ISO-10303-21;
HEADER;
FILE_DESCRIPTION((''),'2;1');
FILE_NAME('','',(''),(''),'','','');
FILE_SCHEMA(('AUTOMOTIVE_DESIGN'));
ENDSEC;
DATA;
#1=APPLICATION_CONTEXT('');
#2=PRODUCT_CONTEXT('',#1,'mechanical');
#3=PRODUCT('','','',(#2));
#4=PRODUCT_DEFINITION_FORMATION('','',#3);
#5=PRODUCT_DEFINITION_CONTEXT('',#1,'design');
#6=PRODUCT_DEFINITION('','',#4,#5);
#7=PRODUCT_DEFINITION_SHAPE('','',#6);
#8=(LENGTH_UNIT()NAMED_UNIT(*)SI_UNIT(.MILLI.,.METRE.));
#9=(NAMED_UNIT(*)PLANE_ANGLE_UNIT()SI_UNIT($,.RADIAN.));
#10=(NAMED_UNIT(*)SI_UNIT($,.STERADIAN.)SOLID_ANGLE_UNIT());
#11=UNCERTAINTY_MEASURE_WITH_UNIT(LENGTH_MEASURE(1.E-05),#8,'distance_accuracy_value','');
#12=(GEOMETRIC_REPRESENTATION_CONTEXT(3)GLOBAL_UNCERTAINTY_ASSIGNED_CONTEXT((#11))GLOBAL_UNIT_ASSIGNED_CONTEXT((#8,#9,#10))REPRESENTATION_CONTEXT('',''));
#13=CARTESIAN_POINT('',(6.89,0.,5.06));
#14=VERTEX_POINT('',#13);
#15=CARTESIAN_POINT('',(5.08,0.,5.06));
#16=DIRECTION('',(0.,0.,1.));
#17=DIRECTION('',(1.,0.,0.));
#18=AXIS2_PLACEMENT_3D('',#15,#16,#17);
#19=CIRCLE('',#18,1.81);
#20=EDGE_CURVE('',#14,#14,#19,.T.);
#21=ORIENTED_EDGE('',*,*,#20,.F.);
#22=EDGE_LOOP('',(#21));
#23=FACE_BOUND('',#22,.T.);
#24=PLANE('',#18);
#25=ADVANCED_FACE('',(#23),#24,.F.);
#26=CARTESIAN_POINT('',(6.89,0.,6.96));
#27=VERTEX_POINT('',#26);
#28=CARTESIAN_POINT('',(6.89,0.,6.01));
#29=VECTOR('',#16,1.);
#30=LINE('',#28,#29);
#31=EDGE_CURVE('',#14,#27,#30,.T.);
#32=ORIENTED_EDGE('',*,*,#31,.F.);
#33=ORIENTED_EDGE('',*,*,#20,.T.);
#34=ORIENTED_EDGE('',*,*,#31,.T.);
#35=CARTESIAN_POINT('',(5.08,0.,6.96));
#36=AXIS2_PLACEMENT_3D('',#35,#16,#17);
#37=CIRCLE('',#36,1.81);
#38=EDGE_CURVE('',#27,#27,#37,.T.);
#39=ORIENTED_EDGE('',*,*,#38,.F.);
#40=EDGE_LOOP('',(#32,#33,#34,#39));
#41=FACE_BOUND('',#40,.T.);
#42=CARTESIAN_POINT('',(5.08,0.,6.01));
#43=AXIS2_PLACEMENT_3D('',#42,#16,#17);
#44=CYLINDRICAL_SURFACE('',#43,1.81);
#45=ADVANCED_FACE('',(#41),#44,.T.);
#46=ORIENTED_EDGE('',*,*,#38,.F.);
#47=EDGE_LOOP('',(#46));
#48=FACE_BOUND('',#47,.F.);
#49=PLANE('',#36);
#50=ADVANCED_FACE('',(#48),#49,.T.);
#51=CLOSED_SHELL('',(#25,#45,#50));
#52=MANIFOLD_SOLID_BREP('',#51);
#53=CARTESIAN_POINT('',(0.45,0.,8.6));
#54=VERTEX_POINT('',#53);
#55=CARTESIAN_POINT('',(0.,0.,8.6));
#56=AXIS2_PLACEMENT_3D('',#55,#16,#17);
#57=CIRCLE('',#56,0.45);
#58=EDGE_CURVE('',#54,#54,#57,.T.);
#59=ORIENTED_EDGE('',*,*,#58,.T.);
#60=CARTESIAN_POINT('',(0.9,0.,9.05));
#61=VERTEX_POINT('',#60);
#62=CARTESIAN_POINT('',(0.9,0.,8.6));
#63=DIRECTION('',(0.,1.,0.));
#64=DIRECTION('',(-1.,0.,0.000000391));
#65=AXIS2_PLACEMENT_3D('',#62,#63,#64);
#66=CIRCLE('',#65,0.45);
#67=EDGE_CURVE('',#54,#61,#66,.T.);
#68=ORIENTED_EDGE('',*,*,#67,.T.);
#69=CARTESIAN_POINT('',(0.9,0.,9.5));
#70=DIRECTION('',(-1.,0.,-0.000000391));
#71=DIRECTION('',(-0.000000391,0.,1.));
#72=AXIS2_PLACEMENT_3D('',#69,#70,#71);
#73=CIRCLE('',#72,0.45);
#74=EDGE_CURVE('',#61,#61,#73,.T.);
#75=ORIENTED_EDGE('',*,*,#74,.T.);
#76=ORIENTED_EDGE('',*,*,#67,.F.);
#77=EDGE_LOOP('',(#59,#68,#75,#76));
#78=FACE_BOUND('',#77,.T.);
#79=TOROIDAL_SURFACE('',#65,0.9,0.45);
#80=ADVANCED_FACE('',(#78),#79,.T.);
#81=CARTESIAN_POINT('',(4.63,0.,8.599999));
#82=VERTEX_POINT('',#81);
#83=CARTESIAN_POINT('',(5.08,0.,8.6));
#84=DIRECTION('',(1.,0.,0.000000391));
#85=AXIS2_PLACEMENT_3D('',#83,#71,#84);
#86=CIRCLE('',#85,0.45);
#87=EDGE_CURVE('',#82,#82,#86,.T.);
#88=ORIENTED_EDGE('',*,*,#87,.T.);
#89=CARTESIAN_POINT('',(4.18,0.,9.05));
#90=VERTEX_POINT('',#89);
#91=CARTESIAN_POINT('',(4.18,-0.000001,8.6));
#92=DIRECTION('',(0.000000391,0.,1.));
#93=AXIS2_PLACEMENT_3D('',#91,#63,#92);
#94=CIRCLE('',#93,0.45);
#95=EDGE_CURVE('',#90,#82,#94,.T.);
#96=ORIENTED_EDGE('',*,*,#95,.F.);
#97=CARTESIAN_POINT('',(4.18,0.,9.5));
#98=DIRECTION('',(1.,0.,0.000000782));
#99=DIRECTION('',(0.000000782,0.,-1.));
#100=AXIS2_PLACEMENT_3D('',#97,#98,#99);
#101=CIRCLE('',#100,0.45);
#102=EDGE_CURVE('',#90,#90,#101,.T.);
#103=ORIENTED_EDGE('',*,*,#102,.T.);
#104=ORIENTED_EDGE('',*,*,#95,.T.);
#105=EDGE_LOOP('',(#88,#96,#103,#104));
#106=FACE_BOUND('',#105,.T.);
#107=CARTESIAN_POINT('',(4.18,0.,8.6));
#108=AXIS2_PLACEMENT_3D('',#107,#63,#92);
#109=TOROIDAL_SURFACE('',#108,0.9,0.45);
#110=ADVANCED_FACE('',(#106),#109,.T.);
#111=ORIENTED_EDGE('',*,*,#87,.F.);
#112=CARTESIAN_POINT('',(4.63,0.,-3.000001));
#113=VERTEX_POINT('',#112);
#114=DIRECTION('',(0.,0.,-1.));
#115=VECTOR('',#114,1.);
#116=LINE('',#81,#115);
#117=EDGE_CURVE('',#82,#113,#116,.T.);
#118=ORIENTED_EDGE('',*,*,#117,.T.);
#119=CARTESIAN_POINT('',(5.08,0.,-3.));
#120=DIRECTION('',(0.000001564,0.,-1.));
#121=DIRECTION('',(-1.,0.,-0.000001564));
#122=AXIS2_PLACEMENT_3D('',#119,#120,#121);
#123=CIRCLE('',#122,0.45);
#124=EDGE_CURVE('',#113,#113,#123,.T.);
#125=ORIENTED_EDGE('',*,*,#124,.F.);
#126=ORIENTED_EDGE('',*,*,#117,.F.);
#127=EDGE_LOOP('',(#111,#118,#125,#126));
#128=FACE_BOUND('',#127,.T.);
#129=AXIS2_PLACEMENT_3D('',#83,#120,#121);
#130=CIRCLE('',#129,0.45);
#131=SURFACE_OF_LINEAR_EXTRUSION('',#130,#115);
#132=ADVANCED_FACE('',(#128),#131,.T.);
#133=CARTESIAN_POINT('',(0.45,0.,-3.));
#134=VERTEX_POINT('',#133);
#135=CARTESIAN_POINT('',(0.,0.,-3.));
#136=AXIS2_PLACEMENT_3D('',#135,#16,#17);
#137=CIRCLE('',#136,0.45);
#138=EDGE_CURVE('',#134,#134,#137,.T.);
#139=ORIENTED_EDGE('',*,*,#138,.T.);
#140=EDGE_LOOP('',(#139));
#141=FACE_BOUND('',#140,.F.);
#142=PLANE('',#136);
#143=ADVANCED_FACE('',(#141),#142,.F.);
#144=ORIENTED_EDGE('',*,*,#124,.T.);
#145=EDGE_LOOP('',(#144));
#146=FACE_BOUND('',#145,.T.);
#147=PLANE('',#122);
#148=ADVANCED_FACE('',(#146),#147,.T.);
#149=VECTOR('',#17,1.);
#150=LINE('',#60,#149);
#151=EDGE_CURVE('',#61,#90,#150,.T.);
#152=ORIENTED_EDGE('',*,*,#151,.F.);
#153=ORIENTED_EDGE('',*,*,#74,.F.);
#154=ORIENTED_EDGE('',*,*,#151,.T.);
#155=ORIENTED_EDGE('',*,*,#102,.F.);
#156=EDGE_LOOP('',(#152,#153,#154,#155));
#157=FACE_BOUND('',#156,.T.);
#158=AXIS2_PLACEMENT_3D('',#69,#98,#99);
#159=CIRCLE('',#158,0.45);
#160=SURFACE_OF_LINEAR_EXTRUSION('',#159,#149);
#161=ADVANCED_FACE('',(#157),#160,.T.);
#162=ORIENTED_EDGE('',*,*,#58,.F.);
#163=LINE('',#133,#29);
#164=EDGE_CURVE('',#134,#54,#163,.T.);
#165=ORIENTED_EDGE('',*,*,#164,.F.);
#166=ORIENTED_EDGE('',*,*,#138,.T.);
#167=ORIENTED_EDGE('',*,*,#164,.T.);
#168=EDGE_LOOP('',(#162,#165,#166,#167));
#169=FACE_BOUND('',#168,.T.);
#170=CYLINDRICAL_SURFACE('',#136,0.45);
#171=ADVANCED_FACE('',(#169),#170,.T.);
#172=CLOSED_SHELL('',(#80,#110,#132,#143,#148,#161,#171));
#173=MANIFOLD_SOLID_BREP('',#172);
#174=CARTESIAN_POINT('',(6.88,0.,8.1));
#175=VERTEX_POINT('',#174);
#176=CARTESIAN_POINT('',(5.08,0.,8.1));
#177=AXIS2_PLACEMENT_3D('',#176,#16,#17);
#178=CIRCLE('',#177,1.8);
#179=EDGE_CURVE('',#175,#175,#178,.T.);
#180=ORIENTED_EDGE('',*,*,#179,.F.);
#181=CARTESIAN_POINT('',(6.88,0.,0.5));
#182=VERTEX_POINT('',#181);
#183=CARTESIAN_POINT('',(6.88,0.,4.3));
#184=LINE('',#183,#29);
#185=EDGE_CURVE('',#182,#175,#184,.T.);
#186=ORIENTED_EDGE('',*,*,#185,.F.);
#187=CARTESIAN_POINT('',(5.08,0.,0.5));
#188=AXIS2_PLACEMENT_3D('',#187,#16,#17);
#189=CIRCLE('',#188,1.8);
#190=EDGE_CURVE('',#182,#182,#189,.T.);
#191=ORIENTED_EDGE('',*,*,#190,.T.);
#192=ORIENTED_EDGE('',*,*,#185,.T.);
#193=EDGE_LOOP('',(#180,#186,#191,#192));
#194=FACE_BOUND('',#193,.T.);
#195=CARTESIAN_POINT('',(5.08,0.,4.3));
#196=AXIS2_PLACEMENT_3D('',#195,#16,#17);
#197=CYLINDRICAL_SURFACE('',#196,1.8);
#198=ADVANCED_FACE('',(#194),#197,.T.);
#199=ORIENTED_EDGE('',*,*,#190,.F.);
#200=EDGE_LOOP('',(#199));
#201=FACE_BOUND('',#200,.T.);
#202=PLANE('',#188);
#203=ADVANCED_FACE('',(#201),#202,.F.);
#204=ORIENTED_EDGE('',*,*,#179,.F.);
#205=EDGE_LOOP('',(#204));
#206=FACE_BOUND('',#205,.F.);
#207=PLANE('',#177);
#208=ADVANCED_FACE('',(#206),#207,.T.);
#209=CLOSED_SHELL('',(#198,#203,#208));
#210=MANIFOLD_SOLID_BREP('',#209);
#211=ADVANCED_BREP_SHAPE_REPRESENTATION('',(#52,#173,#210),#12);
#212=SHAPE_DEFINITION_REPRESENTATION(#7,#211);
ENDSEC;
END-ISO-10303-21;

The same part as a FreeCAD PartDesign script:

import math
import FreeCAD as App
import Part
import Sketcher

V = App.Vector
Q = App.Units.Quantity


def add_polygon(sketch, points):
    """Adds a closed chain of lines whose ends are joined by coincident constraints."""
    first, n = sketch.GeometryCount, len(points)
    for a, b in zip(points, points[1:] + points[:1]):
        sketch.addGeometry(Part.LineSegment(App.Vector(*a, 0), App.Vector(*b, 0)), False)
    for i in range(n):
        sketch.addConstraint(Sketcher.Constraint("Coincident", first + i, 2, first + (i + 1) % n, 1))

doc = App.newDocument("Part")
body = doc.addObject("PartDesign::Body", "Body")

# Sketch on XY plane
sketch1 = body.newObject("Sketcher::SketchObject", "Sketch")
sketch1.AttachmentSupport = (doc.getObject("XY_Plane"), [""])
sketch1.MapMode = "FlatFace"
sketch1.addGeometry(Part.Circle(V(0, 0, 0), V(0, 0, 1), 0.45), False)
sketch1.addConstraint(Sketcher.Constraint("Coincident", 0, 3, -1, 1))
sketch1.addConstraint(Sketcher.Constraint("Diameter", 0, Q("0.9 mm")))

# Sketch on XZ plane
sketch2 = body.newObject("Sketcher::SketchObject", "Sketch001")
sketch2.AttachmentSupport = (doc.getObject("XZ_Plane"), [""])
sketch2.MapMode = "FlatFace"
sketch2.addGeometry(Part.LineSegment(V(0, -3, 0), V(0, 8.6, 0)), False)
sketch2.addGeometry(Part.ArcOfCircle(Part.Circle(V(0.9, 8.6, 0), V(0, 0, 1), 0.9), math.radians(90.000022), math.radians(179.999978)), False)
sketch2.addGeometry(Part.LineSegment(V(0.9, 9.5, 0), V(4.18, 9.5, 0)), False)
sketch2.addGeometry(Part.ArcOfCircle(Part.Circle(V(4.18, 8.6, 0), V(0, 0, 1), 0.9), math.radians(0.000022), math.radians(89.999978)), False)
sketch2.addGeometry(Part.LineSegment(V(5.08, 8.6, 0), V(5.08, -3, 0)), False)
sketch2.addConstraint(Sketcher.Constraint("Tangent", 0, 2, 1, 2))
sketch2.addConstraint(Sketcher.Constraint("Tangent", 1, 1, 2, 1))
sketch2.addConstraint(Sketcher.Constraint("Tangent", 2, 2, 3, 2))
sketch2.addConstraint(Sketcher.Constraint("Tangent", 3, 1, 4, 1))
sketch2.addConstraint(Sketcher.Constraint("Vertical", 0))
sketch2.addConstraint(Sketcher.Constraint("Horizontal", 2))
sketch2.addConstraint(Sketcher.Constraint("Vertical", 4))
sketch2.addConstraint(Sketcher.Constraint("Equal", 1, 3))
sketch2.addConstraint(Sketcher.Constraint("PointOnObject", 0, 1, -2))
sketch2.addConstraint(Sketcher.Constraint("Horizontal", 0, 1, 4, 2))
sketch2.addConstraint(Sketcher.Constraint("Radius", 1, Q("0.9 mm")))
sketch2.addConstraint(Sketcher.Constraint("DistanceY", 0, 1, 0, 2, Q("11.6 mm")))
sketch2.addConstraint(Sketcher.Constraint("DistanceY", 0, 1, -1, 1, Q("3 mm")))
sketch2.addConstraint(Sketcher.Constraint("DistanceX", 2, 1, 2, 2, Q("3.28 mm")))
doc.recompute()

additivepipe = body.newObject("PartDesign::AdditivePipe", "AdditivePipe")
additivepipe.Profile = sketch1
additivepipe.Spine = (sketch2, ["Edge1", "Edge2", "Edge3", "Edge4", "Edge5"])
body2 = doc.addObject("PartDesign::Body", "Body001")

# Sketch on XZ plane
sketch3 = body2.newObject("Sketcher::SketchObject", "Sketch002")
sketch3.AttachmentSupport = (doc.getObject("XZ_Plane001"), [""])
sketch3.MapMode = "FlatFace"
add_polygon(sketch3, [(5.08, 8.1), (5.08, 0.5), (6.88, 0.5), (6.88, 8.1)])  # lines 0-3
sketch3.addGeometry(Part.LineSegment(V(5.08, 0.5, 0), V(5.08, 8.1, 0)), True)  # axis
sketch3.addConstraint(Sketcher.Constraint("Vertical", 0))
sketch3.addConstraint(Sketcher.Constraint("Horizontal", 1))
sketch3.addConstraint(Sketcher.Constraint("Vertical", 2))
sketch3.addConstraint(Sketcher.Constraint("Horizontal", 3))
sketch3.addConstraint(Sketcher.Constraint("Vertical", 4))
sketch3.addConstraint(Sketcher.Constraint("Coincident", 4, 1, 0, 2))
sketch3.addConstraint(Sketcher.Constraint("Horizontal", 2, 2, 4, 2))
sketch3.addConstraint(Sketcher.Constraint("DistanceX", 1, 1, 1, 2, Q("1.8 mm")))
sketch3.addConstraint(Sketcher.Constraint("DistanceY", 0, 2, 0, 1, Q("7.6 mm")))
sketch3.addConstraint(Sketcher.Constraint("DistanceY", -1, 1, 0, 2, Q("0.5 mm")))
sketch3.addConstraint(Sketcher.Constraint("DistanceX", -1, 1, 0, 2, Q("5.08 mm")))
revolution = body2.newObject("PartDesign::Revolution", "Revolution")
revolution.Profile = sketch3
revolution.ReferenceAxis = (sketch3, ["Axis0"])
revolution.Angle = 360
body3 = doc.addObject("PartDesign::Body", "Body002")

# Sketch on XZ plane
sketch4 = body3.newObject("Sketcher::SketchObject", "Sketch003")
sketch4.AttachmentSupport = (doc.getObject("XZ_Plane002"), [""])
sketch4.MapMode = "FlatFace"
add_polygon(sketch4, [(5.08, 6.96), (5.08, 5.06), (6.89, 5.06), (6.89, 6.96)])  # lines 0-3
sketch4.addGeometry(Part.LineSegment(V(5.08, 5.06, 0), V(5.08, 6.96, 0)), True)  # axis
sketch4.addConstraint(Sketcher.Constraint("Vertical", 0))
sketch4.addConstraint(Sketcher.Constraint("Horizontal", 1))
sketch4.addConstraint(Sketcher.Constraint("Vertical", 2))
sketch4.addConstraint(Sketcher.Constraint("Horizontal", 3))
sketch4.addConstraint(Sketcher.Constraint("Vertical", 4))
sketch4.addConstraint(Sketcher.Constraint("Coincident", 4, 1, 0, 2))
sketch4.addConstraint(Sketcher.Constraint("Horizontal", 2, 2, 4, 2))
sketch4.addConstraint(Sketcher.Constraint("DistanceY", 0, 2, 0, 1, Q("1.9 mm")))
sketch4.addConstraint(Sketcher.Constraint("DistanceX", 1, 1, 1, 2, Q("1.81 mm")))
sketch4.addConstraint(Sketcher.Constraint("DistanceX", -1, 1, 0, 2, Q("5.08 mm")))
sketch4.addConstraint(Sketcher.Constraint("DistanceY", -1, 1, 0, 2, Q("5.06 mm")))
revolution2 = body3.newObject("PartDesign::Revolution", "Revolution001")
revolution2.Profile = sketch4
revolution2.ReferenceAxis = (sketch4, ["Axis0"])
revolution2.Angle = 360

doc.recompute()
